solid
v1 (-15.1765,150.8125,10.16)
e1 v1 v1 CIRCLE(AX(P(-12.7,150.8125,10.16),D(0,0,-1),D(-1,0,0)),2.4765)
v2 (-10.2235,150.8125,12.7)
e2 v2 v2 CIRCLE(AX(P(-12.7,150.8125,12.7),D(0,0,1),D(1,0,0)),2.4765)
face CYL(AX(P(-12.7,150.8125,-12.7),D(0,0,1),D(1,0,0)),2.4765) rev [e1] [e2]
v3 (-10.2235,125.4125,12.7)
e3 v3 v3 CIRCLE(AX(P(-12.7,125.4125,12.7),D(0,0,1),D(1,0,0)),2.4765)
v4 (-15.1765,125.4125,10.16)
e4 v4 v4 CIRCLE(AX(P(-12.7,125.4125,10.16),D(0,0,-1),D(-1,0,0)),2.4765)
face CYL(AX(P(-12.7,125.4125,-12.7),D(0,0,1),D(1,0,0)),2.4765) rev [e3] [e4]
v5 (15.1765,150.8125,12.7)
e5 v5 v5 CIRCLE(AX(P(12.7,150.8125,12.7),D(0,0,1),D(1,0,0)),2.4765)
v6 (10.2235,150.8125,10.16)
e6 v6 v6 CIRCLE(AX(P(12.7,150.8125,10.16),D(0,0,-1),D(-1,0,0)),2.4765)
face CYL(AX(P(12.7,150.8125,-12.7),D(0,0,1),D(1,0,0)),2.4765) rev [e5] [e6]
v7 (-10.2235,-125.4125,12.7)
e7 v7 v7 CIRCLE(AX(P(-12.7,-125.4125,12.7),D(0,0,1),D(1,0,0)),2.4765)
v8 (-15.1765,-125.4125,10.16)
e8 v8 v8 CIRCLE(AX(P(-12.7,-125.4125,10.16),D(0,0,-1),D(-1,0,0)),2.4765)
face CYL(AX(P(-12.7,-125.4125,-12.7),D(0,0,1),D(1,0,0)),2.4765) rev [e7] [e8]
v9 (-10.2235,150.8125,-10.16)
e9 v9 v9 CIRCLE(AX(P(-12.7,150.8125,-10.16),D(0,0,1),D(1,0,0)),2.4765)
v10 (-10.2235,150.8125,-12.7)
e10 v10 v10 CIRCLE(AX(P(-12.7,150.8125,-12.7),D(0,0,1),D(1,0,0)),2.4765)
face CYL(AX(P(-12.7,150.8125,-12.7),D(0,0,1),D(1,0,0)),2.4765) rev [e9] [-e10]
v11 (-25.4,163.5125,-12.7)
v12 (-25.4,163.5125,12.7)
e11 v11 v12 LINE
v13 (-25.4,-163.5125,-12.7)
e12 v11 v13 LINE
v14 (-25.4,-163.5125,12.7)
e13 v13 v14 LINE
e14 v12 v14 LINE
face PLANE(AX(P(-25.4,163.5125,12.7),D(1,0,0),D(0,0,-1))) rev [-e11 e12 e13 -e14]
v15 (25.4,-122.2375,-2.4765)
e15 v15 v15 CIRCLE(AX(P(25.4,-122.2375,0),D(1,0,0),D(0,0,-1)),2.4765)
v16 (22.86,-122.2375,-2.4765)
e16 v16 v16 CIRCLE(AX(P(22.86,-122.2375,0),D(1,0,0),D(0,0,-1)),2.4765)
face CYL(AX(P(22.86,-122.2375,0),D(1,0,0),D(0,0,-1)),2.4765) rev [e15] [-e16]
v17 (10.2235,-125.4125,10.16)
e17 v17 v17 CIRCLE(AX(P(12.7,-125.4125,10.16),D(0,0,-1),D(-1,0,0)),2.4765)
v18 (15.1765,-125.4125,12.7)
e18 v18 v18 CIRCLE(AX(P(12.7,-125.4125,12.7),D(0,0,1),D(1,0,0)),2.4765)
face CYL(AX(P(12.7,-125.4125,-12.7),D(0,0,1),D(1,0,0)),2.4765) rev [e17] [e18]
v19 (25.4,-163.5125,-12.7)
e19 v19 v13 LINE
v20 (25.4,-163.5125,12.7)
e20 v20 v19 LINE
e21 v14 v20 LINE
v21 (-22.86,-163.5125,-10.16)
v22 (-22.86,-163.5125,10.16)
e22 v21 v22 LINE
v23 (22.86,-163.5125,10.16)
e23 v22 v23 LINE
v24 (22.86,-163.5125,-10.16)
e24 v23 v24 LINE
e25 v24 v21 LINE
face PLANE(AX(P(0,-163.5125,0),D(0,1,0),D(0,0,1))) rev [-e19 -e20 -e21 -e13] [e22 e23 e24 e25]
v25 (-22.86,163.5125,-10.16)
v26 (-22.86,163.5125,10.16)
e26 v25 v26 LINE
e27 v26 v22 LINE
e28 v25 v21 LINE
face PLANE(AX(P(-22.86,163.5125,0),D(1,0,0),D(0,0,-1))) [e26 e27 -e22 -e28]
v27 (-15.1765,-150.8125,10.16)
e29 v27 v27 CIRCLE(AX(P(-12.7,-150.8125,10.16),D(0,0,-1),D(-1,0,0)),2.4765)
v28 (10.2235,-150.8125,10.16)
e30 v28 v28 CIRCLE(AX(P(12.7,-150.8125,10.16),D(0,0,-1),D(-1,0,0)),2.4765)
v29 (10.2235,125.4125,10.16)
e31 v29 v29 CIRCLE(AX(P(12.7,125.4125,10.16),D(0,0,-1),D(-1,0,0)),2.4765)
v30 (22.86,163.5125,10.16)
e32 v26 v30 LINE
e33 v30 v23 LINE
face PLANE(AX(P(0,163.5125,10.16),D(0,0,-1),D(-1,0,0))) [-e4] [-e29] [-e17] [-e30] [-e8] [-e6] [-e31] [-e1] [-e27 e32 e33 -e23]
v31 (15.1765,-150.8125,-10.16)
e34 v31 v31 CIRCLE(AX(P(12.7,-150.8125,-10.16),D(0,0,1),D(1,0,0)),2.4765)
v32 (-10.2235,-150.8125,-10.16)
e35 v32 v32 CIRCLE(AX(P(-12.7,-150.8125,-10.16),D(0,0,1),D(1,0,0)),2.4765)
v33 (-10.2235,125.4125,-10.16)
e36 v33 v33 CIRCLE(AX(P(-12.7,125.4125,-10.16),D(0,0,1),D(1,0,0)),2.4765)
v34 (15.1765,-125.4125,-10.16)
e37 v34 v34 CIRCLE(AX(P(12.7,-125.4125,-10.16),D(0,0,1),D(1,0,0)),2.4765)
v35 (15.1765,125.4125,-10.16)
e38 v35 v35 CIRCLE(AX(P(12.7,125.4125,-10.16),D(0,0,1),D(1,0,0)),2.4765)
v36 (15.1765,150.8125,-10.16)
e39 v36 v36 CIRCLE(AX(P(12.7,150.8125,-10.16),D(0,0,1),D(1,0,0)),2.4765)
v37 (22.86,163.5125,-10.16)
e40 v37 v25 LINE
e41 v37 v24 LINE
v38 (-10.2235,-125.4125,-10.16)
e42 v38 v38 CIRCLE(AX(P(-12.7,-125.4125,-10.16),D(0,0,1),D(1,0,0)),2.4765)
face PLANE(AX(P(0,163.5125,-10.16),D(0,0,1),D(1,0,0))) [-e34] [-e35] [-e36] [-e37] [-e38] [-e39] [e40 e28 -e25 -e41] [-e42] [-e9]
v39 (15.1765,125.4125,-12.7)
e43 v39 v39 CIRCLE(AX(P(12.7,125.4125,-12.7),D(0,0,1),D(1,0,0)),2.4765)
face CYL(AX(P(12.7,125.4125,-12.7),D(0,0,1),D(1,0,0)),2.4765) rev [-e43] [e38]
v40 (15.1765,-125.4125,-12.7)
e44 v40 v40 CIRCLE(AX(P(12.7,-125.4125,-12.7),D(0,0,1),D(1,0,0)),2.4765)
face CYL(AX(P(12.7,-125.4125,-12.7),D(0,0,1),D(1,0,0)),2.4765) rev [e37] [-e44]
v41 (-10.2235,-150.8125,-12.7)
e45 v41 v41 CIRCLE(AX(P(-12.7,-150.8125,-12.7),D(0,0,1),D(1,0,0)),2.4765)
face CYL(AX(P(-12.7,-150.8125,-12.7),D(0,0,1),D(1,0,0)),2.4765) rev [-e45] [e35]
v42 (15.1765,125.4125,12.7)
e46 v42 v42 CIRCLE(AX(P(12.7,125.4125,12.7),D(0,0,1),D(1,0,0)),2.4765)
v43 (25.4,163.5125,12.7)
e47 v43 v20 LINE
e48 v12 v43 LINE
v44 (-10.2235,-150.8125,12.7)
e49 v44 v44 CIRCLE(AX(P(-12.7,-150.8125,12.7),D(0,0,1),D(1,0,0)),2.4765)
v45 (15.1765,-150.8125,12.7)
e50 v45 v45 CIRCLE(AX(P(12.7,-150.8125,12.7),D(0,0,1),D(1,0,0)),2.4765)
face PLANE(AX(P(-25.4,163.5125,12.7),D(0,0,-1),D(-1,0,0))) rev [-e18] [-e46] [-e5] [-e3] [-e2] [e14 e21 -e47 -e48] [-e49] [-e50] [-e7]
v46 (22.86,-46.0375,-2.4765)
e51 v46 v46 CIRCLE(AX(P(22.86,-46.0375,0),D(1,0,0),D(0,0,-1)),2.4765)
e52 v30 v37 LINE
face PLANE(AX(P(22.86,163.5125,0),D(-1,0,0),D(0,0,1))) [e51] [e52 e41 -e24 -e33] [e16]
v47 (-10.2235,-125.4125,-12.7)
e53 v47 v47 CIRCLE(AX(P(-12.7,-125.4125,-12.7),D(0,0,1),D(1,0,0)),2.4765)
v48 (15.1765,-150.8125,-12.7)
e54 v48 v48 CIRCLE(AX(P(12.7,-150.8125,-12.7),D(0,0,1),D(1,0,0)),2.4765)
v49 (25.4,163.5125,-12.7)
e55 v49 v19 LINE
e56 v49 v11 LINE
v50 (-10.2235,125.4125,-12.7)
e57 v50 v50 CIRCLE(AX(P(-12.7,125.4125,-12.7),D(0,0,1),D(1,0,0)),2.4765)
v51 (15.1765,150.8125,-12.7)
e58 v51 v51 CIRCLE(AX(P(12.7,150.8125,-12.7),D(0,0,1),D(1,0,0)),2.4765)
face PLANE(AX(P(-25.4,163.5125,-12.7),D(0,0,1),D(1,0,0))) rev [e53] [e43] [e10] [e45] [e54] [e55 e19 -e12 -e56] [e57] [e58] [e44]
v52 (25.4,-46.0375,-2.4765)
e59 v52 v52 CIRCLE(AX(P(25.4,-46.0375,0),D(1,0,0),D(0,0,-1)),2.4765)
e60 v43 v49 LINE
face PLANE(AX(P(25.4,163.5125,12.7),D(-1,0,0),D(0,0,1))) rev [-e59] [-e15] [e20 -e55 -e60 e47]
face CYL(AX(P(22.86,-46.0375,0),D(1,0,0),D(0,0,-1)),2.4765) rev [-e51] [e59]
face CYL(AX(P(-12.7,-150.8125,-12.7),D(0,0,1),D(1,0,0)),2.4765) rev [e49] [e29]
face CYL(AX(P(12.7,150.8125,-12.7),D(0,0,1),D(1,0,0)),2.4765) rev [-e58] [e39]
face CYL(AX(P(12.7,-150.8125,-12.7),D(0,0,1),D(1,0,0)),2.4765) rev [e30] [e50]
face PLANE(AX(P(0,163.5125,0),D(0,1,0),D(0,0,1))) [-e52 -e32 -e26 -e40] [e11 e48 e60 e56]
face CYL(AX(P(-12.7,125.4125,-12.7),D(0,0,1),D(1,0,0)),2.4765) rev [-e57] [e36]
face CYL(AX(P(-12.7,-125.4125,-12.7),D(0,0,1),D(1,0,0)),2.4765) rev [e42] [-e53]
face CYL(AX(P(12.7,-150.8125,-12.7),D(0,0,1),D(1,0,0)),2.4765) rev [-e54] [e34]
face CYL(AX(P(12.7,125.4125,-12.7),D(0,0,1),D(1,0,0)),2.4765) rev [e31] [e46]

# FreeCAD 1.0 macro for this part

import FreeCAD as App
import Part
import Sketcher
Q = App.Units.Quantity

doc = App.newDocument("Part")
body = doc.addObject("PartDesign::Body", "Body")

# Sketch on XZ plane
sketch1 = body.newObject("Sketcher::SketchObject", "Sketch")
sketch1.AttachmentSupport = (doc.getObject("XZ_Plane"), [""])
sketch1.MapMode = "FlatFace"
sketch1.addGeometry([
    Part.LineSegment(App.Vector(-25, -13, 0), App.Vector(-25, 13, 0)),  # 0
    Part.LineSegment(App.Vector(-25, 13, 0), App.Vector(25, 13, 0)),  # 1
    Part.LineSegment(App.Vector(25, 13, 0), App.Vector(25, -13, 0)),  # 2
    Part.LineSegment(App.Vector(25, -13, 0), App.Vector(-25, -13, 0)),  # 3
    Part.LineSegment(App.Vector(23, 10, 0), App.Vector(-23, 10, 0)),  # 4
    Part.LineSegment(App.Vector(-23, 10, 0), App.Vector(-23, -10, 0)),  # 5
    Part.LineSegment(App.Vector(-23, -10, 0), App.Vector(23, -10, 0)),  # 6
    Part.LineSegment(App.Vector(23, -10, 0), App.Vector(23, 10, 0)),  # 7
], False)
sketch1.addConstraint([
    Sketcher.Constraint("Coincident", 0, 2, 1, 1),
    Sketcher.Constraint("Coincident", 1, 2, 2, 1),
    Sketcher.Constraint("Coincident", 2, 2, 3, 1),
    Sketcher.Constraint("Coincident", 3, 2, 0, 1),
    Sketcher.Constraint("Coincident", 4, 2, 5, 1),
    Sketcher.Constraint("Coincident", 5, 2, 6, 1),
    Sketcher.Constraint("Coincident", 6, 2, 7, 1),
    Sketcher.Constraint("Coincident", 7, 2, 4, 1),
    Sketcher.Constraint("Vertical", 0),
    Sketcher.Constraint("Horizontal", 1),
    Sketcher.Constraint("Vertical", 2),
    Sketcher.Constraint("Horizontal", 3),
    Sketcher.Constraint("Horizontal", 4),
    Sketcher.Constraint("Vertical", 5),
    Sketcher.Constraint("Horizontal", 6),
    Sketcher.Constraint("Vertical", 7),
    Sketcher.Constraint("Symmetric", 0, 2, 2, 2, -1, 1),
    Sketcher.Constraint("Symmetric", 4, 2, 6, 2, -1, 1),
    Sketcher.Constraint("DistanceX", 1, 1, 1, 2, Q("2 in")),
    Sketcher.Constraint("DistanceY", 0, 1, 0, 2, Q("1 in")),
    Sketcher.Constraint("DistanceX", 4, 2, 4, 1, Q("1.8 in")),
    Sketcher.Constraint("DistanceY", 5, 2, 5, 1, Q("0.8 in")),
])
pad1 = body.newObject("PartDesign::Pad", "Pad")
pad1.Profile = sketch1
pad1.Length = Q("12.875 in")
pad1.Midplane = True

# Sketch on XY plane
sketch2 = body.newObject("Sketcher::SketchObject", "Sketch001")
sketch2.AttachmentSupport = (doc.getObject("XY_Plane"), [""])
sketch2.MapMode = "FlatFace"
sketch2.addGeometry([
    Part.Circle(App.Vector(-12.7, -125.4, 0), App.Vector(0, 0, 1), 2.5),  # 0
    Part.Circle(App.Vector(12.7, -125.4, 0), App.Vector(0, 0, 1), 2.5),  # 1
    Part.Circle(App.Vector(12.7, -150.8, 0), App.Vector(0, 0, 1), 2.5),  # 2
    Part.Circle(App.Vector(-12.7, -150.8, 0), App.Vector(0, 0, 1), 2.5),  # 3
    Part.Circle(App.Vector(12.7, 150.8, 0), App.Vector(0, 0, 1), 2.5),  # 4
    Part.Circle(App.Vector(12.7, 125.4, 0), App.Vector(0, 0, 1), 2.5),  # 5
    Part.Circle(App.Vector(-12.7, 125.4, 0), App.Vector(0, 0, 1), 2.5),  # 6
    Part.Circle(App.Vector(-12.7, 150.8, 0), App.Vector(0, 0, 1), 2.5),  # 7
], False)
sketch2.addConstraint([
    Sketcher.Constraint("Equal", 0, 1),
    Sketcher.Constraint("Equal", 1, 2),
    Sketcher.Constraint("Equal", 2, 3),
    Sketcher.Constraint("Equal", 3, 4),
    Sketcher.Constraint("Equal", 4, 5),
    Sketcher.Constraint("Equal", 5, 6),
    Sketcher.Constraint("Equal", 6, 7),
    Sketcher.Constraint("Symmetric", 3, 3, 4, 3, -1, 1),
    Sketcher.Constraint("Symmetric", 0, 3, 5, 3, -1, 1),
    Sketcher.Constraint("Symmetric", 1, 3, 6, 3, -1, 1),
    Sketcher.Constraint("Symmetric", 2, 3, 7, 3, -1, 1),
    Sketcher.Constraint("Symmetric", 0, 3, 1, 3, -2),
    Sketcher.Constraint("Symmetric", 2, 3, 3, 3, -2),
    Sketcher.Constraint("Vertical", 1, 3, 2, 3),
    Sketcher.Constraint("Diameter", 0, Q("0.195 in")),
    Sketcher.Constraint("DistanceX", 0, 3, 1, 3, Q("1 in")),
    Sketcher.Constraint("DistanceY", 2, 3, 1, 3, Q("1 in")),
    Sketcher.Constraint("DistanceY", 0, 3, -1, 1, Q("4.9375 in")),
])
pocket1 = body.newObject("PartDesign::Pocket", "Pocket")
pocket1.Profile = sketch2
pocket1.Type = "ThroughAll"
pocket1.Midplane = True

# Sketch on YZ plane
sketch3 = body.newObject("Sketcher::SketchObject", "Sketch002")
sketch3.AttachmentSupport = (doc.getObject("YZ_Plane"), [""])
sketch3.MapMode = "FlatFace"
sketch3.AttachmentOffset = App.Placement(App.Vector(0, 0, 1 * 25.4), App.Rotation())
sketch3.addGeometry([
    Part.Circle(App.Vector(-46, 0, 0), App.Vector(0, 0, 1), 2.5),
    Part.Circle(App.Vector(-122.2, 0, 0), App.Vector(0, 0, 1), 2.5),
], False)
sketch3.addConstraint([
    Sketcher.Constraint("Equal", 0, 1),
    Sketcher.Constraint("PointOnObject", 0, 3, -1),
    Sketcher.Constraint("PointOnObject", 1, 3, -1),
    Sketcher.Constraint("Diameter", 0, Q("0.195 in")),
    Sketcher.Constraint("DistanceX", 1, 3, 0, 3, Q("3 in")),
    Sketcher.Constraint("DistanceX", 0, 3, -1, 1, Q("1.8125 in")),
])
pocket2 = body.newObject("PartDesign::Pocket", "Pocket001")
pocket2.Profile = sketch3
pocket2.Length = Q("0.1 in")

doc.recompute()
